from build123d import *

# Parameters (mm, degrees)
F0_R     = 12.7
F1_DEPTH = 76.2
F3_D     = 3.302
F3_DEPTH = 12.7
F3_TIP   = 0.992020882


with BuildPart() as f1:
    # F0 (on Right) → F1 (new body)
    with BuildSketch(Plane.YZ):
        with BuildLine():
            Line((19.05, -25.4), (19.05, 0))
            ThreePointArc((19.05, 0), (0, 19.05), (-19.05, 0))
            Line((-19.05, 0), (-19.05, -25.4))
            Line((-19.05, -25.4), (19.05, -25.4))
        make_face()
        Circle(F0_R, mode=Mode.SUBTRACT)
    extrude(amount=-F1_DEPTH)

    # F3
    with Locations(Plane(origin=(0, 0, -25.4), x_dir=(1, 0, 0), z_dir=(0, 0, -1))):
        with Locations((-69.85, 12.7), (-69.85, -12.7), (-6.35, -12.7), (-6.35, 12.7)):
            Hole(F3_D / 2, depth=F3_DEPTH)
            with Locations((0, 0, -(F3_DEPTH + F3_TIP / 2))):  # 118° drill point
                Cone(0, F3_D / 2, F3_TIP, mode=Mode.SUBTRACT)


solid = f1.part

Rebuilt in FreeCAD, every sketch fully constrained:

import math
import FreeCAD as App
import Part
import Sketcher

V = App.Vector
Q = App.Units.Quantity

doc = App.newDocument("Part")
body = doc.addObject("PartDesign::Body", "Body")

sketch1 = body.newObject("Sketcher::SketchObject", "Sketch")
sketch1.AttachmentSupport = (doc.getObject("YZ_Plane"), [""])
sketch1.MapMode = "FlatFace"
sketch1.addGeometry([
    Part.LineSegment(V(19.05, -25.4, 0), V(19.05, 0, 0)),
    Part.ArcOfCircle(Part.Circle(V(0, 0, 0), V(0, 0, 1), 19.05), math.radians(0), math.radians(180)),
    Part.LineSegment(V(-19.05, 0, 0), V(-19.05, -25.4, 0)),
    Part.LineSegment(V(-19.05, -25.4, 0), V(19.05, -25.4, 0)),
    Part.Circle(V(0, 0, 0), V(0, 0, 1), 12.7),
], False)
sketch1.addConstraint([
    Sketcher.Constraint("Tangent", 0, 2, 1, 1),
    Sketcher.Constraint("Tangent", 1, 2, 2, 1),
    Sketcher.Constraint("Coincident", 2, 2, 3, 1),
    Sketcher.Constraint("Coincident", 3, 2, 0, 1),
    Sketcher.Constraint("Vertical", 0),
    Sketcher.Constraint("Vertical", 2),
    Sketcher.Constraint("Horizontal", 3),
    Sketcher.Constraint("Coincident", 1, 3, -1, 1),
    Sketcher.Constraint("Coincident", 4, 3, -1, 1),
    Sketcher.Constraint("Diameter", 4, Q("1 in")),
    Sketcher.Constraint("DistanceY", 0, 1, 0, 2, Q("1 in")),
    Sketcher.Constraint("Radius", 1, Q("0.75 in")),
])
pad1 = body.newObject("PartDesign::Pad", "Pad")
pad1.Profile = sketch1
pad1.Length = Q("3 in")
pad1.Reversed = True

sketch2 = body.newObject("Sketcher::SketchObject", "Sketch001")
sketch2.AttachmentSupport = (doc.getObject("XY_Plane"), [""])
sketch2.MapMode = "FlatFace"
sketch2.AttachmentOffset = App.Placement(V(0, 0, -1 * 25.4), App.Rotation())
sketch2.addGeometry([
    Part.Circle(V(-69.85, -12.7, 0), V(0, 0, 1), 1.651),
    Part.Circle(V(-69.85, 12.7, 0), V(0, 0, 1), 1.651),
    Part.Circle(V(-6.35, 12.7, 0), V(0, 0, 1), 1.651),
    Part.Circle(V(-6.35, -12.7, 0), V(0, 0, 1), 1.651),
], False)
sketch2.addConstraint([
    Sketcher.Constraint("Equal", 0, 1),
    Sketcher.Constraint("Equal", 1, 2),
    Sketcher.Constraint("Equal", 2, 3),
    Sketcher.Constraint("Symmetric", 0, 3, 1, 3, -1),
    Sketcher.Constraint("Symmetric", 2, 3, 3, 3, -1),
    Sketcher.Constraint("Horizontal", 1, 3, 2, 3),
    Sketcher.Constraint("Diameter", 0, Q("0.13 in")),
    Sketcher.Constraint("DistanceY", 0, 3, 1, 3, Q("1 in")),
    Sketcher.Constraint("DistanceX", 1, 3, 2, 3, Q("2.5 in")),
    Sketcher.Constraint("DistanceX", 0, 3, -1, 1, Q("2.75 in")),
])
doc.recompute()
hole = body.newObject("PartDesign::Hole", "Hole")
hole.Profile = sketch2
hole.ThreadType = "None"
hole.Diameter = Q("0.13 in")
hole.DepthType = "Dimension"
hole.Depth = Q("0.5 in")
hole.DrillPoint = "Angled"
hole.DrillPointAngle = 118
hole.Reversed = True

doc.recompute()
